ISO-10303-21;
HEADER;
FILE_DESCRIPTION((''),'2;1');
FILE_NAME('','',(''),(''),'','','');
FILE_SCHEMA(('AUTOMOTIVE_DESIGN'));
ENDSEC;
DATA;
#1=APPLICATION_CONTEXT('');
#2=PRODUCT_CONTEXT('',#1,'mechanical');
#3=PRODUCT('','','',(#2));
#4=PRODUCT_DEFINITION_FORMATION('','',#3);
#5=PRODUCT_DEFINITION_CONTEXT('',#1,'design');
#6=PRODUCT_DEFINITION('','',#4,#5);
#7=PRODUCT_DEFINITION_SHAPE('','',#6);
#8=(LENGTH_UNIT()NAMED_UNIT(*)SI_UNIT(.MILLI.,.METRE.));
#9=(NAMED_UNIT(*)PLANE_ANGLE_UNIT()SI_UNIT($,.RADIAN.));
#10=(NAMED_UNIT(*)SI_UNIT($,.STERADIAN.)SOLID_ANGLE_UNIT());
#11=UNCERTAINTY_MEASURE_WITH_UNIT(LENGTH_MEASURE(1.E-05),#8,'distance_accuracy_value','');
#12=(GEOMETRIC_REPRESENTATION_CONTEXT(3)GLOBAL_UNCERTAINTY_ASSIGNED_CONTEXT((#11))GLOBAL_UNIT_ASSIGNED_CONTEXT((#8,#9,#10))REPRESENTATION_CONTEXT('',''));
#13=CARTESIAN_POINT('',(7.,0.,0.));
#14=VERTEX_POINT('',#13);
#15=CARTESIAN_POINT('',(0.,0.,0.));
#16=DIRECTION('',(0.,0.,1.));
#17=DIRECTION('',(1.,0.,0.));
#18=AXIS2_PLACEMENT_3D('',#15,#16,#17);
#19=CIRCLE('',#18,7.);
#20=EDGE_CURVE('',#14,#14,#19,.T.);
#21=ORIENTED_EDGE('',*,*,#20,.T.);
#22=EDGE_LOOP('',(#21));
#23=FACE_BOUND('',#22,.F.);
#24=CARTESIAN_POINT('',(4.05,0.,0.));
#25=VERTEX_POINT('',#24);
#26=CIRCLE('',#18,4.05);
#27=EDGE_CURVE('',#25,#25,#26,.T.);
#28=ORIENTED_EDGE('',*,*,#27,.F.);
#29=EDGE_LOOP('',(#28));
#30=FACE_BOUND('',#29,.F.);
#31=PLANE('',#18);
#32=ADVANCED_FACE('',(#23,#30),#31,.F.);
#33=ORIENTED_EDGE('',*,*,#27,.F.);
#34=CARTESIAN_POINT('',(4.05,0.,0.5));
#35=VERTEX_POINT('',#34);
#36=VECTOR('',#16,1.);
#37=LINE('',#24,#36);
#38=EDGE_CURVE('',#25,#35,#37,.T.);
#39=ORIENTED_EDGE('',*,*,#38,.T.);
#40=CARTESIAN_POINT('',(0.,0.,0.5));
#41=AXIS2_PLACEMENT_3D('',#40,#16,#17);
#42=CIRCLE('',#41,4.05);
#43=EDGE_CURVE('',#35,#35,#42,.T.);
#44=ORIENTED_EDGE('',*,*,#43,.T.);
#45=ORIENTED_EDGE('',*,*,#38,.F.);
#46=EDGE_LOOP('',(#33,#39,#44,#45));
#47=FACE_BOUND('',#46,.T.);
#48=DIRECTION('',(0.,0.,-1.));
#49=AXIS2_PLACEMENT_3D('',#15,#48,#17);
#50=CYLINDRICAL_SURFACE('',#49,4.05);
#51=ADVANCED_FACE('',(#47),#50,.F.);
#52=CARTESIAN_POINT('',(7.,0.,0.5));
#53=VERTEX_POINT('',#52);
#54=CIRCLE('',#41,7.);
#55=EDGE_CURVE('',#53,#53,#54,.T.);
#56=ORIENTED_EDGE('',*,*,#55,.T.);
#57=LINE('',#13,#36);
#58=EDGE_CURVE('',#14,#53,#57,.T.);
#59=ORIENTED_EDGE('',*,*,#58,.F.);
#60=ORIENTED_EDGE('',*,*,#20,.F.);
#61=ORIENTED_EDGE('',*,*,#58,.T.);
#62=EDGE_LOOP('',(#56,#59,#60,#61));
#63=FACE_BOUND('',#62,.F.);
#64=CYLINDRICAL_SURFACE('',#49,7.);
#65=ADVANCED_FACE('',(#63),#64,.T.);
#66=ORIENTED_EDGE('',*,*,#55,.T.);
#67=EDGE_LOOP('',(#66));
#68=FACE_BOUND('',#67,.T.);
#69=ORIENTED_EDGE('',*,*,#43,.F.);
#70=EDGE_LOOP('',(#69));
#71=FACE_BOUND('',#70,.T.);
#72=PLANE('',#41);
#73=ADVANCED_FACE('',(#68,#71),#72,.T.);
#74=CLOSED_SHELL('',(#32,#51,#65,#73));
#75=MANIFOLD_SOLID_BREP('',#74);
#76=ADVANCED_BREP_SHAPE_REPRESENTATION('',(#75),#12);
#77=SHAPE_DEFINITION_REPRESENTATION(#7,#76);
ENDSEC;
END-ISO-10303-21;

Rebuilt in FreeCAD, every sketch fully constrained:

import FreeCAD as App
import Part
import Sketcher

V = App.Vector

doc = App.newDocument("Part")
body = doc.addObject("PartDesign::Body", "Body")

sketch1 = body.newObject("Sketcher::SketchObject", "Sketch")
sketch1.AttachmentSupport = (doc.getObject("XY_Plane"), [""])
sketch1.MapMode = "FlatFace"
sketch1.addGeometry(Part.Circle(V(0, 0, 0), V(0, 0, 1), 7), False)
sketch1.addGeometry(Part.Circle(V(0, 0, 0), V(0, 0, 1), 4.05), False)
sketch1.addConstraint(Sketcher.Constraint("Coincident", 0, 3, -1, 1))
sketch1.addConstraint(Sketcher.Constraint("Coincident", 1, 3, -1, 1))
sketch1.addConstraint(Sketcher.Constraint("Diameter", 0, 14.0))
sketch1.addConstraint(Sketcher.Constraint("Diameter", 1, 8.1))
pad1 = body.newObject("PartDesign::Pad", "Pad")
pad1.Profile = sketch1
pad1.Length = 0.5

doc.recompute()
